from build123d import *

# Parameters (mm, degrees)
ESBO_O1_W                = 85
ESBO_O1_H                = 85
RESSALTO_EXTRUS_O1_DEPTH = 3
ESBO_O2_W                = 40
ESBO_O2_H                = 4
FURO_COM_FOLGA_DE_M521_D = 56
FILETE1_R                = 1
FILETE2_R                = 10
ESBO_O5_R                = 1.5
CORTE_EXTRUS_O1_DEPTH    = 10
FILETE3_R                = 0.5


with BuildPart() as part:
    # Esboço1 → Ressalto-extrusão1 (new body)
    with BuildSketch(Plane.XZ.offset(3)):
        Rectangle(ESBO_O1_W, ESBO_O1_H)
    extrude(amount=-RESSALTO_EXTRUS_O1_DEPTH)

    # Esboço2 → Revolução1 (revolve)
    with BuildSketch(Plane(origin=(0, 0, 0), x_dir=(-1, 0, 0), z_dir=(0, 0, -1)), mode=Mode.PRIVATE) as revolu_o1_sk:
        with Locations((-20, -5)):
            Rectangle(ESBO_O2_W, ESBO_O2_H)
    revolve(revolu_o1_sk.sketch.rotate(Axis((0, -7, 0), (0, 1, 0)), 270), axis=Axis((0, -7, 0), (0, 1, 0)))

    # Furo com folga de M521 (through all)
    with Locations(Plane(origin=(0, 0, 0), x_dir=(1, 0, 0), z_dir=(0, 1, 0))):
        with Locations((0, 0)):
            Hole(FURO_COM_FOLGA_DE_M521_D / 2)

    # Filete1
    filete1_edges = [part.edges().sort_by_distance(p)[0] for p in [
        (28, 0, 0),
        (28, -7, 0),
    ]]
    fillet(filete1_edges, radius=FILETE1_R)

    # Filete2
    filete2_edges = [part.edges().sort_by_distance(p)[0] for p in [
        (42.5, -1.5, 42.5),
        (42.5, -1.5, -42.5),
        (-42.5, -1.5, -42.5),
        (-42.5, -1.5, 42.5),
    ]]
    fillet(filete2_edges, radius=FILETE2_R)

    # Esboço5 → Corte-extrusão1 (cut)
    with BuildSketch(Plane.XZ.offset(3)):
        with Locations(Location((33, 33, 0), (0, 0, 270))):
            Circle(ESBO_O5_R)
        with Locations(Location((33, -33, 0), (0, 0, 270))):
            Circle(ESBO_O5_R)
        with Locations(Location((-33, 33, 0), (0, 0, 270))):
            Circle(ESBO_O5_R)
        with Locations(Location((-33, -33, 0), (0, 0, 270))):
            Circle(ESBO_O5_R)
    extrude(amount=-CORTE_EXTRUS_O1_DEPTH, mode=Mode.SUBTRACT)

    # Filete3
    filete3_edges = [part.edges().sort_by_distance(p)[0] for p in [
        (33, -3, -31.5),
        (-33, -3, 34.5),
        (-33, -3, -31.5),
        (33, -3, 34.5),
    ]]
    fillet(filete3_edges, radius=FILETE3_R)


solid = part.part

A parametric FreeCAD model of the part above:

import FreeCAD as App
import Part
import Sketcher
from FreeCAD import Vector
Q = App.Units.Quantity


def edges_at(feature, points):
    """Names of the edges that pass closest to the given points."""
    edges = feature.Shape.Edges
    near = lambda p: min(range(len(edges)), key=lambda i: edges[i].distToShape(Part.Vertex(*p))[0])
    return sorted({f"Edge{near(p) + 1}" for p in points})

doc = App.newDocument("Part")
body = doc.addObject("PartDesign::Body", "Body")

# Sketch on XZ plane
sketch1 = body.newObject("Sketcher::SketchObject", "Sketch")
sketch1.AttachmentSupport = (doc.getObject("XZ_Plane"), [""])
sketch1.MapMode = "FlatFace"
sketch1.AttachmentOffset = App.Placement(Vector(0, 0, 3), App.Rotation())
sketch1.addGeometry(Part.LineSegment(Vector(-42.5, 42.5, 0), Vector(-42.5, -42.5, 0)), False)
sketch1.addGeometry(Part.LineSegment(Vector(-42.5, -42.5, 0), Vector(42.5, -42.5, 0)), False)
sketch1.addGeometry(Part.LineSegment(Vector(42.5, -42.5, 0), Vector(42.5, 42.5, 0)), False)
sketch1.addGeometry(Part.LineSegment(Vector(42.5, 42.5, 0), Vector(-42.5, 42.5, 0)), False)
sketch1.addConstraint(Sketcher.Constraint("Coincident", 0, 2, 1, 1))
sketch1.addConstraint(Sketcher.Constraint("Coincident", 1, 2, 2, 1))
sketch1.addConstraint(Sketcher.Constraint("Coincident", 2, 2, 3, 1))
sketch1.addConstraint(Sketcher.Constraint("Coincident", 3, 2, 0, 1))
sketch1.addConstraint(Sketcher.Constraint("Vertical", 0))
sketch1.addConstraint(Sketcher.Constraint("Horizontal", 1))
sketch1.addConstraint(Sketcher.Constraint("Vertical", 2))
sketch1.addConstraint(Sketcher.Constraint("Horizontal", 3))
sketch1.addConstraint(Sketcher.Constraint("Symmetric", 0, 2, 2, 2, -1, 1))
sketch1.addConstraint(Sketcher.Constraint("Equal", 3, 0))
sketch1.addConstraint(Sketcher.Constraint("DistanceX", 1, 1, 1, 2, Q("85 mm")))
pad1 = body.newObject("PartDesign::Pad", "Pad")
pad1.Profile = sketch1
pad1.Length = 3
pad1.Reversed = True

# Sketch on XY plane
sketch2 = body.newObject("Sketcher::SketchObject", "Sketch001")
sketch2.AttachmentSupport = (doc.getObject("XY_Plane"), [""])
sketch2.MapMode = "FlatFace"
sketch2.addGeometry(Part.LineSegment(Vector(40, -3, 0), Vector(40, -7, 0)), False)
sketch2.addGeometry(Part.LineSegment(Vector(40, -7, 0), Vector(0, -7, 0)), False)
sketch2.addGeometry(Part.LineSegment(Vector(0, -7, 0), Vector(0, -3, 0)), False)
sketch2.addGeometry(Part.LineSegment(Vector(0, -3, 0), Vector(40, -3, 0)), False)
sketch2.addConstraint(Sketcher.Constraint("Coincident", 0, 2, 1, 1))
sketch2.addConstraint(Sketcher.Constraint("Coincident", 1, 2, 2, 1))
sketch2.addConstraint(Sketcher.Constraint("Coincident", 2, 2, 3, 1))
sketch2.addConstraint(Sketcher.Constraint("Coincident", 3, 2, 0, 1))
sketch2.addConstraint(Sketcher.Constraint("Vertical", 0))
sketch2.addConstraint(Sketcher.Constraint("Horizontal", 1))
sketch2.addConstraint(Sketcher.Constraint("Vertical", 2))
sketch2.addConstraint(Sketcher.Constraint("Horizontal", 3))
sketch2.addConstraint(Sketcher.Constraint("PointOnObject", 1, 2, -2))
sketch2.addConstraint(Sketcher.Constraint("DistanceX", 1, 2, 1, 1, Q("40 mm")))
sketch2.addConstraint(Sketcher.Constraint("DistanceY", 0, 2, 0, 1, Q("4 mm")))
sketch2.addConstraint(Sketcher.Constraint("DistanceY", 0, 2, -1, 1, Q("7 mm")))
revolution = body.newObject("PartDesign::Revolution", "Revolution")
revolution.Profile = sketch2
revolution.ReferenceAxis = (sketch2, ["V_Axis"])
revolution.Angle = 360

# Sketch on XZ plane
sketch3 = body.newObject("Sketcher::SketchObject", "Sketch002")
sketch3.AttachmentSupport = (doc.getObject("XZ_Plane"), [""])
sketch3.MapMode = "FlatFace"
sketch3.addGeometry(Part.Circle(Vector(0, 0, 0), Vector(0, 0, 1), 28), False)
sketch3.addConstraint(Sketcher.Constraint("Coincident", 0, 3, -1, 1))
sketch3.addConstraint(Sketcher.Constraint("Diameter", 0, Q("56 mm")))
doc.recompute()
hole = body.newObject("PartDesign::Hole", "Hole")
hole.Profile = sketch3
hole.ThreadType = "None"
hole.Diameter = 56
hole.DepthType = "ThroughAll"
hole.Reversed = True
doc.recompute()

fillet = body.newObject("PartDesign::Fillet", "Fillet")
fillet.Base = (hole, edges_at(hole, [(28, 0, 0), (28, -7, 0)]))
fillet.Radius = 1
doc.recompute()

fillet2 = body.newObject("PartDesign::Fillet", "Fillet001")
fillet2.Base = (fillet, edges_at(fillet, [
    (42.5, -1.5, 42.5),
    (42.5, -1.5, -42.5),
    (-42.5, -1.5, -42.5),
    (-42.5, -1.5, 42.5),
]))
fillet2.Radius = 10

# Sketch on XZ plane
sketch4 = body.newObject("Sketcher::SketchObject", "Sketch003")
sketch4.AttachmentSupport = (doc.getObject("XZ_Plane"), [""])
sketch4.MapMode = "FlatFace"
sketch4.AttachmentOffset = App.Placement(Vector(0, 0, 3), App.Rotation())
sketch4.addGeometry(Part.Circle(Vector(33, 33, 0), Vector(0, 0, 1), 1.5), False)
sketch4.addGeometry(Part.Circle(Vector(33, -33, 0), Vector(0, 0, 1), 1.5), False)
sketch4.addGeometry(Part.Circle(Vector(-33, 33, 0), Vector(0, 0, 1), 1.5), False)
sketch4.addGeometry(Part.Circle(Vector(-33, -33, 0), Vector(0, 0, 1), 1.5), False)
sketch4.addConstraint(Sketcher.Constraint("Equal", 0, 1))
sketch4.addConstraint(Sketcher.Constraint("Equal", 1, 2))
sketch4.addConstraint(Sketcher.Constraint("Equal", 2, 3))
sketch4.addConstraint(Sketcher.Constraint("Symmetric", 1, 3, 2, 3, -1, 1))
sketch4.addConstraint(Sketcher.Constraint("Symmetric", 0, 3, 3, 3, -1, 1))
sketch4.addConstraint(Sketcher.Constraint("Symmetric", 0, 3, 2, 3, -2))
sketch4.addConstraint(Sketcher.Constraint("Diameter", 0, Q("3 mm")))
sketch4.addConstraint(Sketcher.Constraint("DistanceX", -1, 1, 0, 3, Q("33 mm")))
sketch4.addConstraint(Sketcher.Constraint("DistanceY", -1, 1, 0, 3, Q("33 mm")))
pocket1 = body.newObject("PartDesign::Pocket", "Pocket")
pocket1.Profile = sketch4
pocket1.Length = 10
doc.recompute()

fillet3 = body.newObject("PartDesign::Fillet", "Fillet002")
fillet3.Base = (pocket1, edges_at(pocket1, [
    (33, -3, -31.5),
    (-33, -3, 34.5),
    (-33, -3, -31.5),
    (33, -3, 34.5),
]))
fillet3.Radius = 0.5

doc.recompute()
